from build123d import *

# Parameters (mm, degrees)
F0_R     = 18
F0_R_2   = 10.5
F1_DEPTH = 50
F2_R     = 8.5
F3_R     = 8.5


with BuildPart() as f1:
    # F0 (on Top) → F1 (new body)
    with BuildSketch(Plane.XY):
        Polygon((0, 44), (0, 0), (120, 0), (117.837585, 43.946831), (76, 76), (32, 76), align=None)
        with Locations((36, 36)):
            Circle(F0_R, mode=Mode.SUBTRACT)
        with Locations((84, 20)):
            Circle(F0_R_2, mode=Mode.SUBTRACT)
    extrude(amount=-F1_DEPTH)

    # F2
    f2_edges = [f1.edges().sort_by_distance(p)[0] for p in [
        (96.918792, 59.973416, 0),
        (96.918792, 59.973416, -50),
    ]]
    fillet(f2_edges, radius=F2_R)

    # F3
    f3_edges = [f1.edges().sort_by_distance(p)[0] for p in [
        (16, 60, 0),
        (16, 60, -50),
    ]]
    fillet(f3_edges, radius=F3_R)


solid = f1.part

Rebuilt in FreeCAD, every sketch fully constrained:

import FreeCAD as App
import Part
import Sketcher

V = App.Vector
Q = App.Units.Quantity


def edges_at(feature, points):
    """Names of the edges that pass closest to the given points."""
    edges = feature.Shape.Edges
    near = lambda p: min(range(len(edges)), key=lambda i: edges[i].distToShape(Part.Vertex(*p))[0])
    return sorted({f"Edge{near(p) + 1}" for p in points})


def add_polygon(sketch, points):
    """Adds a closed chain of lines whose ends are joined by coincident constraints."""
    first, n = sketch.GeometryCount, len(points)
    for a, b in zip(points, points[1:] + points[:1]):
        sketch.addGeometry(Part.LineSegment(App.Vector(*a, 0), App.Vector(*b, 0)), False)
    for i in range(n):
        sketch.addConstraint(Sketcher.Constraint("Coincident", first + i, 2, first + (i + 1) % n, 1))

doc = App.newDocument("Part")
body = doc.addObject("PartDesign::Body", "Body")

# Sketch on XY plane
sketch1 = body.newObject("Sketcher::SketchObject", "Sketch")
sketch1.AttachmentSupport = (doc.getObject("XY_Plane"), [""])
sketch1.MapMode = "FlatFace"
add_polygon(sketch1, [(0, 44), (0, 0), (120, 0), (118, 44), (76, 76), (32, 76)])  # lines 0-5
sketch1.addGeometry(Part.Circle(V(84, 20, 0), V(0, 0, 1), 10), False)  # 6
sketch1.addGeometry(Part.Circle(V(36, 36, 0), V(0, 0, 1), 18), False)  # 7
sketch1.addConstraint([
    Sketcher.Constraint("Vertical", 0),
    Sketcher.Constraint("Horizontal", 1),
    Sketcher.Constraint("Horizontal", 4),
    Sketcher.Constraint("Coincident", 0, 2, -1, 1),
    Sketcher.Constraint("Equal", 4, 0),
    Sketcher.Constraint("Diameter", 6, 21.0),
    Sketcher.Constraint("Diameter", 7, 36.0),
    Sketcher.Constraint("DistanceX", 1, 1, 1, 2, 120.0),
    Sketcher.Constraint("DistanceX", 4, 2, 4, 1, 44.0),
    Sketcher.Constraint("Angle", 5, Q("-135 deg")),
    Sketcher.Constraint("Distance", 2, 44.0),
    Sketcher.Constraint("DistanceX", -1, 1, 6, 3, 84.0),
    Sketcher.Constraint("DistanceY", -1, 1, 6, 3, 20.0),
    Sketcher.Constraint("DistanceX", -1, 1, 7, 3, 36.0),
    Sketcher.Constraint("DistanceY", -1, 1, 7, 3, 36.0),
    Sketcher.Constraint("DistanceX", -1, 1, 3, 2, 76.0),
    Sketcher.Constraint("DistanceY", -1, 1, 2, 2, 43.946831),
])
pad1 = body.newObject("PartDesign::Pad", "Pad")
pad1.Profile = sketch1
pad1.Length = 50
pad1.Reversed = True
doc.recompute()

fillet = body.newObject("PartDesign::Fillet", "Fillet")
fillet.Base = (pad1, edges_at(pad1, [(96.919, 59.973, 0), (96.919, 59.973, -50)]))
fillet.Radius = 8.5
doc.recompute()

fillet2 = body.newObject("PartDesign::Fillet", "Fillet001")
fillet2.Base = (fillet, edges_at(fillet, [(16, 60, 0), (16, 60, -50)]))
fillet2.Radius = 8.5

doc.recompute()
